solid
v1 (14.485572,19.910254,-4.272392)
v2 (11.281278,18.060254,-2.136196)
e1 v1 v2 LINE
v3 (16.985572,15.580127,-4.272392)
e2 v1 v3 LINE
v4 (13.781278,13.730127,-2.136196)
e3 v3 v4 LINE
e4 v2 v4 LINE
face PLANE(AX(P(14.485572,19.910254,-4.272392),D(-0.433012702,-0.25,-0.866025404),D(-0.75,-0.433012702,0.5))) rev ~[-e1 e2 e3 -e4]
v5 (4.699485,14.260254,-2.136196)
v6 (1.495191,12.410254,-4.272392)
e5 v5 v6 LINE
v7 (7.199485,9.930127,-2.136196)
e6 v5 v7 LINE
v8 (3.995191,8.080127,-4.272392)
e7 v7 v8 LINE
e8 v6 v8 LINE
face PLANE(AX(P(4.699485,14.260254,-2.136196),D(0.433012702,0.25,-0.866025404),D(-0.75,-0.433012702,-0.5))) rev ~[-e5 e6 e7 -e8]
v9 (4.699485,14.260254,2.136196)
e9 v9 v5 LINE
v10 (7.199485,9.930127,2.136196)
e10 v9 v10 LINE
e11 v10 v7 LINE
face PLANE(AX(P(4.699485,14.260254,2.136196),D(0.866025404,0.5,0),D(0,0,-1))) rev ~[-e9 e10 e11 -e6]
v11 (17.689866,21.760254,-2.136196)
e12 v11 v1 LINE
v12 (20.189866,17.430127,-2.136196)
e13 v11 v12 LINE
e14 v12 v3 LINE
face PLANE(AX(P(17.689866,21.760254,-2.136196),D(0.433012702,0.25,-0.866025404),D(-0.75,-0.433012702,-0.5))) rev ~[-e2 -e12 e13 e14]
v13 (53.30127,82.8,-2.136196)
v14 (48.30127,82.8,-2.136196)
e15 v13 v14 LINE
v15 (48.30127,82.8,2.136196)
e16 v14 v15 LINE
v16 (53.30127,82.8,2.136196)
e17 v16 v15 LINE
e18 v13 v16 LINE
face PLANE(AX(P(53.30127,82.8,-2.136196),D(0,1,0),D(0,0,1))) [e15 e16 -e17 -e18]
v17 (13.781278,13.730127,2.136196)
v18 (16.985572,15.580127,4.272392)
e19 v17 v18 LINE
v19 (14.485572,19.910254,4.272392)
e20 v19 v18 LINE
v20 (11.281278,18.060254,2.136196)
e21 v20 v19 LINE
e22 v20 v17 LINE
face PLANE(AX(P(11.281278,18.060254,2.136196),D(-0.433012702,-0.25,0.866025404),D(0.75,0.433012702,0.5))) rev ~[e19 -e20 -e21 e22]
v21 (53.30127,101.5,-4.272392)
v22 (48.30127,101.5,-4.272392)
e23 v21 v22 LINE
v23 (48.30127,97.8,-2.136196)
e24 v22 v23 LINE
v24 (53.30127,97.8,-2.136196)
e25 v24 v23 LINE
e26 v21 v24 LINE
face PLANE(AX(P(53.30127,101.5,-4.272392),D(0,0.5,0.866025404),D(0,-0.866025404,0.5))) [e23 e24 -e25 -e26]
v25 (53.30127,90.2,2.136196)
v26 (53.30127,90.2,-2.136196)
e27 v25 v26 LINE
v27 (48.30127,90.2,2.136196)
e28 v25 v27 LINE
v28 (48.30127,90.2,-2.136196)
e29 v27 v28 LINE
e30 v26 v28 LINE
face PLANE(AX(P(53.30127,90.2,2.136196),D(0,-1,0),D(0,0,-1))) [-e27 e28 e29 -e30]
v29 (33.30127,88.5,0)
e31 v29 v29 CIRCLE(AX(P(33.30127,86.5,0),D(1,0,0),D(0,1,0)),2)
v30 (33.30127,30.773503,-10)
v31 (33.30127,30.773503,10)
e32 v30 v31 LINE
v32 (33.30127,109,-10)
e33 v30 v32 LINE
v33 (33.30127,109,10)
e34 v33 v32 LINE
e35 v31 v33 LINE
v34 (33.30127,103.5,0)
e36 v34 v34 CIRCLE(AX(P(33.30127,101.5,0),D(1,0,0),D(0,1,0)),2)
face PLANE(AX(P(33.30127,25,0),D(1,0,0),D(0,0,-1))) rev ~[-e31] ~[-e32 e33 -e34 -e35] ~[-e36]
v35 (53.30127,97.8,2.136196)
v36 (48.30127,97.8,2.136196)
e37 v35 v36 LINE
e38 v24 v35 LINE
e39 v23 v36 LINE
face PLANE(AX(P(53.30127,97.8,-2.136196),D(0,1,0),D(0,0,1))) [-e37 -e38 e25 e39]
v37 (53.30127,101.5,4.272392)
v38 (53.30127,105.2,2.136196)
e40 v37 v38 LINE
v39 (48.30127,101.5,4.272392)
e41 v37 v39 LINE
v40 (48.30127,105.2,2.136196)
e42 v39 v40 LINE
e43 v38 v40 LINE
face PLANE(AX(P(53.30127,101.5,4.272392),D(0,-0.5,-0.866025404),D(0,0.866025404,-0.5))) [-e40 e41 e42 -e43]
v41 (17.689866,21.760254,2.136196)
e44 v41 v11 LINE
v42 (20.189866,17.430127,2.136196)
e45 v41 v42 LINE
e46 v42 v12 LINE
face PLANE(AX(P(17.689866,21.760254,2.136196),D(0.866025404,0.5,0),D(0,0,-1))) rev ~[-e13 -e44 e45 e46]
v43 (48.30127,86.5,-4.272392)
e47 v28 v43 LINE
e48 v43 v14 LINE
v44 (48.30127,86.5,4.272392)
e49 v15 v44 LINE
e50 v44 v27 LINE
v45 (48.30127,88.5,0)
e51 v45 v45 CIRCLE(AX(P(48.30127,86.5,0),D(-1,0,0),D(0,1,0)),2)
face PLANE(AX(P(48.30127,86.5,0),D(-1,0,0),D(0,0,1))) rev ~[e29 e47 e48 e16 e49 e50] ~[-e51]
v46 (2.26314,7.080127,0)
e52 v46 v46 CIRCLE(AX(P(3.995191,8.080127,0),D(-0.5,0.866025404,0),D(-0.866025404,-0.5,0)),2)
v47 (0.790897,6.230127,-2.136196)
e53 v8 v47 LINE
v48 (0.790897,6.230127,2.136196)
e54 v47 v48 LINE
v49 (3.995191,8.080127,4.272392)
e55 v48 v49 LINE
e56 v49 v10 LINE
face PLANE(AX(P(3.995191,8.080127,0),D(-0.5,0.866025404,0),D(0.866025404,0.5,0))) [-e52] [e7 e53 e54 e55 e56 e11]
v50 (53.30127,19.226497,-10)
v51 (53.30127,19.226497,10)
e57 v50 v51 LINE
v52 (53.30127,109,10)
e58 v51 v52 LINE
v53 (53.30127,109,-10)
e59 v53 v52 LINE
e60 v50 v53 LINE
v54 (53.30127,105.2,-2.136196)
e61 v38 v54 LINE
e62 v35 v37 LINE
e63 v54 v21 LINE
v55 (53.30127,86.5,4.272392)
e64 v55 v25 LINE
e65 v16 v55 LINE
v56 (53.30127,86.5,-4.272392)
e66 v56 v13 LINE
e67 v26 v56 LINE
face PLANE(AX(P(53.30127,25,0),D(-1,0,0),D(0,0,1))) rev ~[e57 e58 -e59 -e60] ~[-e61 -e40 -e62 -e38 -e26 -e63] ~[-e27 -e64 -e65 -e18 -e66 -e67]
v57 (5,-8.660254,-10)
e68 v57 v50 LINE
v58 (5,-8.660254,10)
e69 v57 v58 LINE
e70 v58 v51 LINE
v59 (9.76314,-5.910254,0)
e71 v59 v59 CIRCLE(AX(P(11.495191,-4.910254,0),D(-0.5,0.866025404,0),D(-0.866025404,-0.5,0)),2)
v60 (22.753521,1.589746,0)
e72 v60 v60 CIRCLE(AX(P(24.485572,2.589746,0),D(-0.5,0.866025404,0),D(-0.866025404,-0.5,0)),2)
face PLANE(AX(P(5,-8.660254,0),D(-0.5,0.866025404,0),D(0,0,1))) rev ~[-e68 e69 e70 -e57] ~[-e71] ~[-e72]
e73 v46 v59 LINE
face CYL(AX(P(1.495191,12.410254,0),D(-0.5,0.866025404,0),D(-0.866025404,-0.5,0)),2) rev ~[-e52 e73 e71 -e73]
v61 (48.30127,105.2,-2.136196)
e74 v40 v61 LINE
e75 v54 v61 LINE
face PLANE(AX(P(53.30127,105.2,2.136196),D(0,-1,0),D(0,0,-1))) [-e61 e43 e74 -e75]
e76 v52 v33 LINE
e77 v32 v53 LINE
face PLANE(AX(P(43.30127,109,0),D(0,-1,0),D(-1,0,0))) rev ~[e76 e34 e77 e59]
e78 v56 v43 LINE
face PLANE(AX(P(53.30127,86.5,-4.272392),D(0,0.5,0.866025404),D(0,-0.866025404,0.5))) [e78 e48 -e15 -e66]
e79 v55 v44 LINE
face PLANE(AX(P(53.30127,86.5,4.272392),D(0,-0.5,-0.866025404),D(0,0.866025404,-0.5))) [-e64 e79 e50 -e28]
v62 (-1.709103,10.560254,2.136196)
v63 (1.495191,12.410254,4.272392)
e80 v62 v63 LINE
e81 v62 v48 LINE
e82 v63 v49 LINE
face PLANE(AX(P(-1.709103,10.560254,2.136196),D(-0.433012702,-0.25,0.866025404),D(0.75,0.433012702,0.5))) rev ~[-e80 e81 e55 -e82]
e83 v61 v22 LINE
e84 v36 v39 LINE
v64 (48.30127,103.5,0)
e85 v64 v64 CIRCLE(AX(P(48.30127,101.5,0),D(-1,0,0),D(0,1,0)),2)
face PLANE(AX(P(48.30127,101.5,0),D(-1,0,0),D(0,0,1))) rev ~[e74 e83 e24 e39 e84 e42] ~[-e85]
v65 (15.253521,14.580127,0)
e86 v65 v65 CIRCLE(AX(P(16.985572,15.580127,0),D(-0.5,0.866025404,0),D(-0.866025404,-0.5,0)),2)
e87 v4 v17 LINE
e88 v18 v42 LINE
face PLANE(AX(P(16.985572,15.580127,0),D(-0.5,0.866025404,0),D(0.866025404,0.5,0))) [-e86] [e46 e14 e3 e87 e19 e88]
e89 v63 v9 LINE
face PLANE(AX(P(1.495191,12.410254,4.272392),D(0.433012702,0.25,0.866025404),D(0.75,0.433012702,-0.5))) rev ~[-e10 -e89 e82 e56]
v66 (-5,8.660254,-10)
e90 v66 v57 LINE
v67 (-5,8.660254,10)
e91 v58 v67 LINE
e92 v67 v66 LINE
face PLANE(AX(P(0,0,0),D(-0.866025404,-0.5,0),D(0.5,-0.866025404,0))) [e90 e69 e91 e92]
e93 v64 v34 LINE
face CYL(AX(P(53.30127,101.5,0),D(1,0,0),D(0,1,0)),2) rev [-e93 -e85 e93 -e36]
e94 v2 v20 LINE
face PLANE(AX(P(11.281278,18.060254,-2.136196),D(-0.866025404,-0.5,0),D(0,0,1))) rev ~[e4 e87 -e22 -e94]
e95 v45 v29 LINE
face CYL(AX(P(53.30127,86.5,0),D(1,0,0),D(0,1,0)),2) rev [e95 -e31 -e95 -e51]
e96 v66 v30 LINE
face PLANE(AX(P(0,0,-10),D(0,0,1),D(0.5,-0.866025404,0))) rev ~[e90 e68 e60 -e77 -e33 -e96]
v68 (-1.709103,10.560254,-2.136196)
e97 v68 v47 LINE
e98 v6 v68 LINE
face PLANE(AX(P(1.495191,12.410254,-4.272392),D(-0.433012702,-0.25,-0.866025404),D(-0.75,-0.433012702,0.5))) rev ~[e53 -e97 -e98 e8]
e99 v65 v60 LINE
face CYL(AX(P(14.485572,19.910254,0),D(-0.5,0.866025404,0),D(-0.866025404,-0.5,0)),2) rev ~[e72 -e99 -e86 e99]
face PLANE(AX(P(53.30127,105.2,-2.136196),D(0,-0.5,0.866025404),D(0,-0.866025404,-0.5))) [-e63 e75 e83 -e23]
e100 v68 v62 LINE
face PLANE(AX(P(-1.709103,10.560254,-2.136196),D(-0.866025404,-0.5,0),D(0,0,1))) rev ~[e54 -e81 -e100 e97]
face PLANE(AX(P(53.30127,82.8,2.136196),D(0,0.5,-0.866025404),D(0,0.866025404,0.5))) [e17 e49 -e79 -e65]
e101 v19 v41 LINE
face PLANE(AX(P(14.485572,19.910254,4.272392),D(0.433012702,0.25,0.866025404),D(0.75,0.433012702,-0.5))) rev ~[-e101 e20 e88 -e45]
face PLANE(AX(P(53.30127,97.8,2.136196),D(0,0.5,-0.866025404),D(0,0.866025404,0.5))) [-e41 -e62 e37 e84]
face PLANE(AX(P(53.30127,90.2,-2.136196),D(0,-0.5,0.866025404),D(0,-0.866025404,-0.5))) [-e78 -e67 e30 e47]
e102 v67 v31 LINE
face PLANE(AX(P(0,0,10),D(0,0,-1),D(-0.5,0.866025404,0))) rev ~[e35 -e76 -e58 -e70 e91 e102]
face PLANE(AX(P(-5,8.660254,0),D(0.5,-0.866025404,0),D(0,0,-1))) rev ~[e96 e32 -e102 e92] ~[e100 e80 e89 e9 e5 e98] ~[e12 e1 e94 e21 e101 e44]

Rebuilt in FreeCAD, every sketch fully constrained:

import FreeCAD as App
import Part
import Sketcher

V = App.Vector
Q = App.Units.Quantity

doc = App.newDocument("Part")
params = doc.addObject("Spreadsheet::Sheet", "Params")
for row, (alias, value) in enumerate([
    ("sketch1_width", "20 mm"),
    ("sketch2_height", "84 mm"),
    ("sketch2_length", "50 mm"),
    ("sketch3_diameter", "4 mm"),
    ("sketch4_diameter", "4 mm"),
    ("sketch5_diameter", "4 mm"),
    ("pocket3_length", "5 mm"),
    ("sketch6_diameter", "4 mm"),
    ("sketch7_diameter", "4 mm"),
    ("pocket5_length", "5 mm"),
], start=1):
    params.set(f"A{row}", alias)
    params.set(f"B{row}", "=" + value)
    params.setAlias(f"B{row}", alias)

body = doc.addObject("PartDesign::Body", "Body")

# Sketch on an angled plane
sketch1 = body.newObject("Sketcher::SketchObject", "Sketch")
sketch1.Placement = App.Placement(V(0, 0, 0), App.Rotation(V(0, 0, 1), V(-0.5, 0.866025404, 0), V(-0.866025404, -0.5, 0), "ZXY"))
sketch1.addGeometry(Part.LineSegment(V(-10, 10, 0), V(-10, -10, 0)), False)
sketch1.addGeometry(Part.LineSegment(V(-10, -10, 0), V(10, -10, 0)), False)
sketch1.addGeometry(Part.LineSegment(V(10, -10, 0), V(10, 10, 0)), False)
sketch1.addGeometry(Part.LineSegment(V(10, 10, 0), V(-10, 10, 0)), False)
sketch1.addConstraint(Sketcher.Constraint("Coincident", 0, 2, 1, 1))
sketch1.addConstraint(Sketcher.Constraint("Coincident", 1, 2, 2, 1))
sketch1.addConstraint(Sketcher.Constraint("Coincident", 2, 2, 3, 1))
sketch1.addConstraint(Sketcher.Constraint("Coincident", 3, 2, 0, 1))
sketch1.addConstraint(Sketcher.Constraint("Vertical", 0))
sketch1.addConstraint(Sketcher.Constraint("Horizontal", 1))
sketch1.addConstraint(Sketcher.Constraint("Vertical", 2))
sketch1.addConstraint(Sketcher.Constraint("Horizontal", 3))
sketch1.addConstraint(Sketcher.Constraint("Symmetric", 0, 2, 2, 2, -1, 1))
sketch1.addConstraint(Sketcher.Constraint("Equal", 3, 0))
sketch1.addConstraint(Sketcher.Constraint("DistanceX", 1, 1, 1, 2, Q("20 mm")))
sketch1.setExpression("Constraints[10]", "Params.sketch1_width")

# Sketch on XY plane
sketch2 = body.newObject("Sketcher::SketchObject", "Sketch001")
sketch2.AttachmentSupport = (doc.getObject("XY_Plane"), [""])
sketch2.MapMode = "FlatFace"
sketch2.addGeometry(Part.LineSegment(V(0, 0, 0), V(43, 25, 0)), False)
sketch2.addGeometry(Part.LineSegment(V(43, 25, 0), V(43, 109, 0)), False)
sketch2.addConstraint(Sketcher.Constraint("Coincident", 0, 2, 1, 1))
sketch2.addConstraint(Sketcher.Constraint("Vertical", 1))
sketch2.addConstraint(Sketcher.Constraint("Coincident", 0, 1, -1, 1))
sketch2.addConstraint(Sketcher.Constraint("DistanceY", 1, 1, 1, 2, Q("84 mm")))
sketch2.addConstraint(Sketcher.Constraint("Angle", 0, Q("30 deg")))
sketch2.addConstraint(Sketcher.Constraint("Distance", 0, Q("50 mm")))
sketch2.setExpression("Constraints[3]", "Params.sketch2_height")
sketch2.setExpression("Constraints[5]", "Params.sketch2_length")
doc.recompute()

additivepipe = body.newObject("PartDesign::AdditivePipe", "AdditivePipe")
additivepipe.Profile = sketch1
additivepipe.Spine = (sketch2, ["Edge1", "Edge2"])
additivepipe.Transition = "Right corner"

# Sketch on an angled plane
sketch3 = body.newObject("Sketcher::SketchObject", "Sketch002")
sketch3.Placement = App.Placement(V(-5, 8.660254, 0), App.Rotation(V(0.866025404, 0.5, 0), V(0, 0, -1), V(-0.5, 0.866025404, 0), "ZXY"))
sketch3.addGeometry(Part.Circle(V(7.5, 0, 0), V(0, 0, 1), 2), False)
sketch3.addConstraint(Sketcher.Constraint("PointOnObject", 0, 3, -1))
sketch3.addConstraint(Sketcher.Constraint("Diameter", 0, Q("4 mm")))
sketch3.addConstraint(Sketcher.Constraint("DistanceX", -1, 1, 0, 3, Q("7.5 mm")))
sketch3.setExpression("Constraints[1]", "Params.sketch3_diameter")
pocket1 = body.newObject("PartDesign::Pocket", "Pocket")
pocket1.Profile = sketch3
pocket1.Type = "UpToFirst"

# Sketch on an angled plane
sketch4 = body.newObject("Sketcher::SketchObject", "Sketch003")
sketch4.Placement = App.Placement(V(-5, 8.660254, 0), App.Rotation(V(0.866025404, 0.5, 0), V(0, 0, -1), V(-0.5, 0.866025404, 0), "ZXY"))
sketch4.addGeometry(Part.Circle(V(22.5, 0, 0), V(0, 0, 1), 2), False)
sketch4.addConstraint(Sketcher.Constraint("PointOnObject", 0, 3, -1))
sketch4.addConstraint(Sketcher.Constraint("Diameter", 0, Q("4 mm")))
sketch4.addConstraint(Sketcher.Constraint("DistanceX", -1, 1, 0, 3, Q("22.5 mm")))
sketch4.setExpression("Constraints[1]", "Params.sketch4_diameter")
pocket2 = body.newObject("PartDesign::Pocket", "Pocket001")
pocket2.Profile = sketch4
pocket2.Type = "UpToFirst"

# Sketch on an angled plane
sketch5 = body.newObject("Sketcher::SketchObject", "Sketch004")
sketch5.Placement = App.Placement(V(-5, 8.660254, 0), App.Rotation(V(0.866025404, 0.5, 0), V(0, 0, -1), V(-0.5, 0.866025404, 0), "ZXY"))
sketch5.addGeometry(Part.LineSegment(V(11.2, -2.1, 0), V(11.2, 2.1, 0)), False)
sketch5.addGeometry(Part.LineSegment(V(11.2, 2.1, 0), V(7.5, 4.3, 0)), False)
sketch5.addGeometry(Part.LineSegment(V(7.5, 4.3, 0), V(3.8, 2.1, 0)), False)
sketch5.addGeometry(Part.LineSegment(V(3.8, 2.1, 0), V(3.8, -2.1, 0)), False)
sketch5.addGeometry(Part.LineSegment(V(3.8, -2.1, 0), V(7.5, -4.3, 0)), False)
sketch5.addGeometry(Part.LineSegment(V(7.5, -4.3, 0), V(11.2, -2.1, 0)), False)
sketch5.addGeometry(Part.Circle(V(7.5, 0, 0), V(0, 0, 1), 2), False)
sketch5.addGeometry(Part.LineSegment(V(26.2, -2.1, 0), V(26.2, 2.1, 0)), False)
sketch5.addGeometry(Part.LineSegment(V(26.2, 2.1, 0), V(22.5, 4.3, 0)), False)
sketch5.addGeometry(Part.LineSegment(V(22.5, 4.3, 0), V(18.8, 2.1, 0)), False)
sketch5.addGeometry(Part.LineSegment(V(18.8, 2.1, 0), V(18.8, -2.1, 0)), False)
sketch5.addGeometry(Part.LineSegment(V(18.8, -2.1, 0), V(22.5, -4.3, 0)), False)
sketch5.addGeometry(Part.LineSegment(V(22.5, -4.3, 0), V(26.2, -2.1, 0)), False)
sketch5.addGeometry(Part.Circle(V(22.5, 0, 0), V(0, 0, 1), 2), False)
sketch5.addConstraint(Sketcher.Constraint("Coincident", 0, 2, 1, 1))
sketch5.addConstraint(Sketcher.Constraint("Coincident", 1, 2, 2, 1))
sketch5.addConstraint(Sketcher.Constraint("Coincident", 2, 2, 3, 1))
sketch5.addConstraint(Sketcher.Constraint("Coincident", 3, 2, 4, 1))
sketch5.addConstraint(Sketcher.Constraint("Coincident", 4, 2, 5, 1))
sketch5.addConstraint(Sketcher.Constraint("Coincident", 5, 2, 0, 1))
sketch5.addConstraint(Sketcher.Constraint("Coincident", 7, 2, 8, 1))
sketch5.addConstraint(Sketcher.Constraint("Coincident", 8, 2, 9, 1))
sketch5.addConstraint(Sketcher.Constraint("Coincident", 9, 2, 10, 1))
sketch5.addConstraint(Sketcher.Constraint("Coincident", 10, 2, 11, 1))
sketch5.addConstraint(Sketcher.Constraint("Coincident", 11, 2, 12, 1))
sketch5.addConstraint(Sketcher.Constraint("Coincident", 12, 2, 7, 1))
sketch5.addConstraint(Sketcher.Constraint("Vertical", 0))
sketch5.addConstraint(Sketcher.Constraint("Vertical", 3))
sketch5.addConstraint(Sketcher.Constraint("Vertical", 7))
sketch5.addConstraint(Sketcher.Constraint("Vertical", 10))
sketch5.addConstraint(Sketcher.Constraint("Equal", 6, 13))
sketch5.addConstraint(Sketcher.Constraint("Symmetric", 1, 2, 4, 2, -1))
sketch5.addConstraint(Sketcher.Constraint("Symmetric", 8, 2, 11, 2, -1))
sketch5.addConstraint(Sketcher.Constraint("PointOnObject", 6, 3, -1))
sketch5.addConstraint(Sketcher.Constraint("PointOnObject", 13, 3, -1))
sketch5.addConstraint(Sketcher.Constraint("Parallel", 1, 4))
sketch5.addConstraint(Sketcher.Constraint("Parallel", 2, 5))
sketch5.addConstraint(Sketcher.Constraint("Parallel", 4, 8))
sketch5.addConstraint(Sketcher.Constraint("Parallel", 5, 9))
sketch5.addConstraint(Sketcher.Constraint("Parallel", 8, 11))
sketch5.addConstraint(Sketcher.Constraint("Parallel", 9, 12))
sketch5.addConstraint(Sketcher.Constraint("Horizontal", 0, 2, 2, 2))
sketch5.addConstraint(Sketcher.Constraint("Horizontal", 3, 2, 5, 2))
sketch5.addConstraint(Sketcher.Constraint("Horizontal", 2, 2, 7, 2))
sketch5.addConstraint(Sketcher.Constraint("Horizontal", 1, 2, 8, 2))
sketch5.addConstraint(Sketcher.Constraint("Horizontal", 7, 2, 9, 2))
sketch5.addConstraint(Sketcher.Constraint("Vertical", 6, 3, 1, 2))
sketch5.addConstraint(Sketcher.Constraint("Vertical", 13, 3, 8, 2))
sketch5.addConstraint(Sketcher.Constraint("Diameter", 6, Q("4 mm")))
sketch5.addConstraint(Sketcher.Constraint("Angle", 1, Q("150 deg")))
sketch5.addConstraint(Sketcher.Constraint("DistanceX", 6, 3, 13, 3, Q("15 mm")))
sketch5.addConstraint(Sketcher.Constraint("DistanceX", -1, 1, 6, 3, Q("7.5 mm")))
sketch5.addConstraint(Sketcher.Constraint("DistanceX", -1, 1, 0, 2, Q("11.2 mm")))
sketch5.addConstraint(Sketcher.Constraint("DistanceY", 0, 1, 0, 2, Q("4.272392 mm")))
sketch5.setExpression("Constraints[34]", "Params.sketch5_diameter")
pocket3 = body.newObject("PartDesign::Pocket", "Pocket002")
pocket3.Profile = sketch5
pocket3.setExpression("Length", "Params.pocket3_length")

# Sketch on YZ plane
sketch6 = body.newObject("Sketcher::SketchObject", "Sketch005")
sketch6.AttachmentSupport = (doc.getObject("YZ_Plane"), [""])
sketch6.MapMode = "FlatFace"
sketch6.AttachmentOffset = App.Placement(V(0, 0, 53.30127), App.Rotation())
sketch6.addGeometry(Part.Circle(V(101.5, 0, 0), V(0, 0, 1), 2), False)
sketch6.addGeometry(Part.Circle(V(86.5, 0, 0), V(0, 0, 1), 2), False)
sketch6.addConstraint(Sketcher.Constraint("Equal", 0, 1))
sketch6.addConstraint(Sketcher.Constraint("PointOnObject", 0, 3, -1))
sketch6.addConstraint(Sketcher.Constraint("PointOnObject", 1, 3, -1))
sketch6.addConstraint(Sketcher.Constraint("Diameter", 0, Q("4 mm")))
sketch6.addConstraint(Sketcher.Constraint("DistanceX", 1, 3, 0, 3, Q("15 mm")))
sketch6.addConstraint(Sketcher.Constraint("DistanceX", -1, 1, 0, 3, Q("101.5 mm")))
sketch6.setExpression("Constraints[3]", "Params.sketch6_diameter")
pocket4 = body.newObject("PartDesign::Pocket", "Pocket003")
pocket4.Profile = sketch6
pocket4.Type = "ThroughAll"

# Sketch on YZ plane
sketch7 = body.newObject("Sketcher::SketchObject", "Sketch006")
sketch7.AttachmentSupport = (doc.getObject("YZ_Plane"), [""])
sketch7.MapMode = "FlatFace"
sketch7.AttachmentOffset = App.Placement(V(0, 0, 53.30127), App.Rotation())
sketch7.addGeometry(Part.LineSegment(V(97.8, 2.1, 0), V(101.5, 4.3, 0)), False)
sketch7.addGeometry(Part.LineSegment(V(101.5, 4.3, 0), V(105.2, 2.1, 0)), False)
sketch7.addGeometry(Part.LineSegment(V(105.2, 2.1, 0), V(105.2, -2.1, 0)), False)
sketch7.addGeometry(Part.LineSegment(V(105.2, -2.1, 0), V(101.5, -4.3, 0)), False)
sketch7.addGeometry(Part.LineSegment(V(101.5, -4.3, 0), V(97.8, -2.1, 0)), False)
sketch7.addGeometry(Part.LineSegment(V(97.8, -2.1, 0), V(97.8, 2.1, 0)), False)
sketch7.addGeometry(Part.Circle(V(101.5, 0, 0), V(0, 0, 1), 2), False)
sketch7.addGeometry(Part.LineSegment(V(82.8, 2.1, 0), V(86.5, 4.3, 0)), False)
sketch7.addGeometry(Part.LineSegment(V(86.5, 4.3, 0), V(90.2, 2.1, 0)), False)
sketch7.addGeometry(Part.LineSegment(V(90.2, 2.1, 0), V(90.2, -2.1, 0)), False)
sketch7.addGeometry(Part.LineSegment(V(90.2, -2.1, 0), V(86.5, -4.3, 0)), False)
sketch7.addGeometry(Part.LineSegment(V(86.5, -4.3, 0), V(82.8, -2.1, 0)), False)
sketch7.addGeometry(Part.LineSegment(V(82.8, -2.1, 0), V(82.8, 2.1, 0)), False)
sketch7.addGeometry(Part.Circle(V(86.5, 0, 0), V(0, 0, 1), 2), False)
sketch7.addConstraint(Sketcher.Constraint("Coincident", 0, 2, 1, 1))
sketch7.addConstraint(Sketcher.Constraint("Coincident", 1, 2, 2, 1))
sketch7.addConstraint(Sketcher.Constraint("Coincident", 2, 2, 3, 1))
sketch7.addConstraint(Sketcher.Constraint("Coincident", 3, 2, 4, 1))
sketch7.addConstraint(Sketcher.Constraint("Coincident", 4, 2, 5, 1))
sketch7.addConstraint(Sketcher.Constraint("Coincident", 5, 2, 0, 1))
sketch7.addConstraint(Sketcher.Constraint("Coincident", 7, 2, 8, 1))
sketch7.addConstraint(Sketcher.Constraint("Coincident", 8, 2, 9, 1))
sketch7.addConstraint(Sketcher.Constraint("Coincident", 9, 2, 10, 1))
sketch7.addConstraint(Sketcher.Constraint("Coincident", 10, 2, 11, 1))
sketch7.addConstraint(Sketcher.Constraint("Coincident", 11, 2, 12, 1))
sketch7.addConstraint(Sketcher.Constraint("Coincident", 12, 2, 7, 1))
sketch7.addConstraint(Sketcher.Constraint("Vertical", 2))
sketch7.addConstraint(Sketcher.Constraint("Vertical", 5))
sketch7.addConstraint(Sketcher.Constraint("Vertical", 9))
sketch7.addConstraint(Sketcher.Constraint("Vertical", 12))
sketch7.addConstraint(Sketcher.Constraint("Equal", 6, 13))
sketch7.addConstraint(Sketcher.Constraint("Symmetric", 0, 2, 3, 2, -1))
sketch7.addConstraint(Sketcher.Constraint("Symmetric", 7, 2, 10, 2, -1))
sketch7.addConstraint(Sketcher.Constraint("PointOnObject", 6, 3, -1))
sketch7.addConstraint(Sketcher.Constraint("PointOnObject", 13, 3, -1))
sketch7.addConstraint(Sketcher.Constraint("Parallel", 0, 3))
sketch7.addConstraint(Sketcher.Constraint("Parallel", 1, 4))
sketch7.addConstraint(Sketcher.Constraint("Parallel", 3, 7))
sketch7.addConstraint(Sketcher.Constraint("Parallel", 4, 8))
sketch7.addConstraint(Sketcher.Constraint("Parallel", 7, 10))
sketch7.addConstraint(Sketcher.Constraint("Parallel", 8, 11))
sketch7.addConstraint(Sketcher.Constraint("Horizontal", 2, 2, 4, 2))
sketch7.addConstraint(Sketcher.Constraint("Horizontal", 1, 2, 5, 2))
sketch7.addConstraint(Sketcher.Constraint("Horizontal", 0, 2, 7, 2))
sketch7.addConstraint(Sketcher.Constraint("Horizontal", 5, 2, 8, 2))
sketch7.addConstraint(Sketcher.Constraint("Horizontal", 9, 2, 11, 2))
sketch7.addConstraint(Sketcher.Constraint("Vertical", 6, 3, 0, 2))
sketch7.addConstraint(Sketcher.Constraint("Vertical", 13, 3, 7, 2))
sketch7.addConstraint(Sketcher.Constraint("Diameter", 6, Q("4 mm")))
sketch7.addConstraint(Sketcher.Constraint("Angle", 0, Q("30 deg")))
sketch7.addConstraint(Sketcher.Constraint("DistanceX", 13, 3, 6, 3, Q("15 mm")))
sketch7.addConstraint(Sketcher.Constraint("DistanceX", -1, 1, 6, 3, Q("101.5 mm")))
sketch7.addConstraint(Sketcher.Constraint("DistanceX", -1, 1, 1, 2, Q("105.2 mm")))
sketch7.addConstraint(Sketcher.Constraint("DistanceY", 2, 2, 2, 1, Q("4.272392 mm")))
sketch7.setExpression("Constraints[34]", "Params.sketch7_diameter")
pocket5 = body.newObject("PartDesign::Pocket", "Pocket004")
pocket5.Profile = sketch7
pocket5.setExpression("Length", "Params.pocket5_length")

doc.recompute()
